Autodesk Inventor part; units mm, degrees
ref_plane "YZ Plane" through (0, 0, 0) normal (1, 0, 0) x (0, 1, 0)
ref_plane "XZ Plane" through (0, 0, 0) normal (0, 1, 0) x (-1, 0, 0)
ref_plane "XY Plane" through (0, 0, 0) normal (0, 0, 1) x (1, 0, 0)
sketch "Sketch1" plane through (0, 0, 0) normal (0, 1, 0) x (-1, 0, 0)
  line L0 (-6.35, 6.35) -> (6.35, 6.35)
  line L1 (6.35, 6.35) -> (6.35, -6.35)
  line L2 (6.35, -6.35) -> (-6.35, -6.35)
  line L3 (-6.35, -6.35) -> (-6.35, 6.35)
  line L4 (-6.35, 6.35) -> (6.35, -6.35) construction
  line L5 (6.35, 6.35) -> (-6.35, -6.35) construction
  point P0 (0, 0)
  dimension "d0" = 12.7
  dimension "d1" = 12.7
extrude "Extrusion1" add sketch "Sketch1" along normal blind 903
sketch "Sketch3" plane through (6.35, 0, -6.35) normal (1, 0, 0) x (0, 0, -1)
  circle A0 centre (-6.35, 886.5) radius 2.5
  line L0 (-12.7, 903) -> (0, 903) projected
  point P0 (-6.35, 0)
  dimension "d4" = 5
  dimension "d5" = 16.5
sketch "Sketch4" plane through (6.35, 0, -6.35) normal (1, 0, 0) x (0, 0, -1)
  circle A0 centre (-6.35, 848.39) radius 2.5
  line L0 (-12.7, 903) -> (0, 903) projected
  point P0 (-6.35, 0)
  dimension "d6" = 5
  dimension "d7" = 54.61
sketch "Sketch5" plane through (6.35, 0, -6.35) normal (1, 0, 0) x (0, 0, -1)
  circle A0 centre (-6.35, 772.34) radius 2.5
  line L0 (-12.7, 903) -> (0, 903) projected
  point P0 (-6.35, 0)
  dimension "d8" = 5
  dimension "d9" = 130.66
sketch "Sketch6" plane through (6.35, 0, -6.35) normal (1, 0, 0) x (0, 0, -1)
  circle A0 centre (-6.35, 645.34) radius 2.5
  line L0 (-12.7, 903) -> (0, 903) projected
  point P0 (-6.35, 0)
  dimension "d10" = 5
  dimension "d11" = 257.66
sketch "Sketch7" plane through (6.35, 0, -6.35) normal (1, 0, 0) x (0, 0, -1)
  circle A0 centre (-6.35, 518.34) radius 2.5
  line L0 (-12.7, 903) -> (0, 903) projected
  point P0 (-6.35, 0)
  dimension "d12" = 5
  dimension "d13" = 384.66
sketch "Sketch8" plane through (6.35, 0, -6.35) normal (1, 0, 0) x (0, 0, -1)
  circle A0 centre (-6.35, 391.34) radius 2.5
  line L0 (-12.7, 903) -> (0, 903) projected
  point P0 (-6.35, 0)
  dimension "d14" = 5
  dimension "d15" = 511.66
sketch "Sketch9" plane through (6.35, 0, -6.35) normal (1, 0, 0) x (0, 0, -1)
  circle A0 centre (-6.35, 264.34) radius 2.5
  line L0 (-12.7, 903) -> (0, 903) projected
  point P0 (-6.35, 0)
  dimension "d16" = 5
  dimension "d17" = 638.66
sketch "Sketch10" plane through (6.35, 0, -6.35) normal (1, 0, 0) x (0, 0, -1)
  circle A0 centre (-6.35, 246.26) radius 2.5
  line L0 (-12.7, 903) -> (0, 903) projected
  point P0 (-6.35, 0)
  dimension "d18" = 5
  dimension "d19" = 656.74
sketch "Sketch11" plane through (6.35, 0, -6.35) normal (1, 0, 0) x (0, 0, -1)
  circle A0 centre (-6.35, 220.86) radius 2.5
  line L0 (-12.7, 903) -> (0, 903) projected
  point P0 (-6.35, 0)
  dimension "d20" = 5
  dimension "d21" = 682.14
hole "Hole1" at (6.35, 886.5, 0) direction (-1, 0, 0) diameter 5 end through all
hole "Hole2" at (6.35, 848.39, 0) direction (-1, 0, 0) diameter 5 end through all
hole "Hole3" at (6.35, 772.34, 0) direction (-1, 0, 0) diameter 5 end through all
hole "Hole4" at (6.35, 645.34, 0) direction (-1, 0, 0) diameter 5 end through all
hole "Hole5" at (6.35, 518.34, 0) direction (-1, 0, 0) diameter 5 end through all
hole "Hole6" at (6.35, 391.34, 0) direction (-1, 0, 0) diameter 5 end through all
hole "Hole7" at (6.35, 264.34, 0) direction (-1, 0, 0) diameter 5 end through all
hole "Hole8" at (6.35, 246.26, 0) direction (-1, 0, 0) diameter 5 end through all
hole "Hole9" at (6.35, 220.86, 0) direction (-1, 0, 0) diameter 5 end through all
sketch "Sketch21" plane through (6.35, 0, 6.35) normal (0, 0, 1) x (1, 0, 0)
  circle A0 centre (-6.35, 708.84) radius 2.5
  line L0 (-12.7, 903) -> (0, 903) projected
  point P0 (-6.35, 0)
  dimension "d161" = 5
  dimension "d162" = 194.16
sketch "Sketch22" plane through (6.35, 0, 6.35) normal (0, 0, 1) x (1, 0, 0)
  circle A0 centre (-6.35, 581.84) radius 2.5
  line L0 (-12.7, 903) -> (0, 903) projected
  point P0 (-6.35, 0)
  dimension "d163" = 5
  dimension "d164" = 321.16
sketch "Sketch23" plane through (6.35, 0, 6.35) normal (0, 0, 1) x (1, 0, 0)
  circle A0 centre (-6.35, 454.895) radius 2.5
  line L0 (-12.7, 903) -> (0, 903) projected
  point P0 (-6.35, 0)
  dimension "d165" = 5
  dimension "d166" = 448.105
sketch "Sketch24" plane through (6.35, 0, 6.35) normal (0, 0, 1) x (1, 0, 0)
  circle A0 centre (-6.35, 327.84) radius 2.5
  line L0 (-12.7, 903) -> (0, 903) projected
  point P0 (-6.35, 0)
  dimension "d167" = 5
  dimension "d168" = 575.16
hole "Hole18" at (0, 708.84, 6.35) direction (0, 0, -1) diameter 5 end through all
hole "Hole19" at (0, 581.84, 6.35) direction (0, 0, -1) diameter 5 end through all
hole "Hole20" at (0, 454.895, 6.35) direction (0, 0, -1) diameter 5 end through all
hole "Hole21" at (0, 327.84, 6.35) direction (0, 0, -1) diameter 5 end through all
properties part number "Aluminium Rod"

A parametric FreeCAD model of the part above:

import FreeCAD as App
import Part
import Sketcher

doc = App.newDocument("Part")
body = doc.addObject("PartDesign::Body", "Body")

# Sketch on XZ plane
sketch1 = body.newObject("Sketcher::SketchObject", "Sketch")
sketch1.AttachmentSupport = (doc.getObject("XZ_Plane"), [""])
sketch1.MapMode = "FlatFace"
sketch1.addGeometry(Part.LineSegment(App.Vector(-6, 6, 0), App.Vector(6, 6, 0)), False)
sketch1.addGeometry(Part.LineSegment(App.Vector(6, 6, 0), App.Vector(6, -6, 0)), False)
sketch1.addGeometry(Part.LineSegment(App.Vector(6, -6, 0), App.Vector(-6, -6, 0)), False)
sketch1.addGeometry(Part.LineSegment(App.Vector(-6, -6, 0), App.Vector(-6, 6, 0)), False)
sketch1.addConstraint(Sketcher.Constraint("Coincident", 0, 2, 1, 1))
sketch1.addConstraint(Sketcher.Constraint("Coincident", 1, 2, 2, 1))
sketch1.addConstraint(Sketcher.Constraint("Coincident", 2, 2, 3, 1))
sketch1.addConstraint(Sketcher.Constraint("Coincident", 3, 2, 0, 1))
sketch1.addConstraint(Sketcher.Constraint("Horizontal", 0))
sketch1.addConstraint(Sketcher.Constraint("Vertical", 1))
sketch1.addConstraint(Sketcher.Constraint("Horizontal", 2))
sketch1.addConstraint(Sketcher.Constraint("Vertical", 3))
sketch1.addConstraint(Sketcher.Constraint("Symmetric", 0, 2, 2, 2, -1, 1))
sketch1.addConstraint(Sketcher.Constraint("Equal", 2, 1))
sketch1.addConstraint(Sketcher.Constraint("DistanceX", 0, 1, 0, 2, 12.7))
pad1 = body.newObject("PartDesign::Pad", "Pad")
pad1.Profile = sketch1
pad1.Length = 903
pad1.Reversed = True

# Sketch on YZ plane
sketch2 = body.newObject("Sketcher::SketchObject", "Sketch001")
sketch2.AttachmentSupport = (doc.getObject("YZ_Plane"), [""])
sketch2.MapMode = "FlatFace"
sketch2.AttachmentOffset = App.Placement(App.Vector(0, 0, 6.35), App.Rotation())
sketch2.addGeometry(Part.Circle(App.Vector(886.5, 0, 0), App.Vector(0, 0, 1), 2.5), False)
sketch2.addConstraint(Sketcher.Constraint("PointOnObject", 0, 3, -1))
sketch2.addConstraint(Sketcher.Constraint("Diameter", 0, 5.0))
sketch2.addConstraint(Sketcher.Constraint("DistanceX", -1, 1, 0, 3, 886.5))
doc.recompute()
hole = body.newObject("PartDesign::Hole", "Hole")
hole.Profile = sketch2
hole.ThreadType = "None"
hole.Diameter = 5
hole.DepthType = "ThroughAll"

# Sketch on YZ plane
sketch3 = body.newObject("Sketcher::SketchObject", "Sketch002")
sketch3.AttachmentSupport = (doc.getObject("YZ_Plane"), [""])
sketch3.MapMode = "FlatFace"
sketch3.AttachmentOffset = App.Placement(App.Vector(0, 0, 6.35), App.Rotation())
sketch3.addGeometry(Part.Circle(App.Vector(848.4, 0, 0), App.Vector(0, 0, 1), 2.5), False)
sketch3.addConstraint(Sketcher.Constraint("PointOnObject", 0, 3, -1))
sketch3.addConstraint(Sketcher.Constraint("Diameter", 0, 5.0))
sketch3.addConstraint(Sketcher.Constraint("DistanceX", -1, 1, 0, 3, 848.39))
doc.recompute()
hole2 = body.newObject("PartDesign::Hole", "Hole001")
hole2.Profile = sketch3
hole2.ThreadType = "None"
hole2.Diameter = 5
hole2.DepthType = "ThroughAll"

# Sketch on YZ plane
sketch4 = body.newObject("Sketcher::SketchObject", "Sketch003")
sketch4.AttachmentSupport = (doc.getObject("YZ_Plane"), [""])
sketch4.MapMode = "FlatFace"
sketch4.AttachmentOffset = App.Placement(App.Vector(0, 0, 6.35), App.Rotation())
sketch4.addGeometry(Part.Circle(App.Vector(772.3, 0, 0), App.Vector(0, 0, 1), 2.5), False)
sketch4.addConstraint(Sketcher.Constraint("PointOnObject", 0, 3, -1))
sketch4.addConstraint(Sketcher.Constraint("Diameter", 0, 5.0))
sketch4.addConstraint(Sketcher.Constraint("DistanceX", -1, 1, 0, 3, 772.34))
doc.recompute()
hole3 = body.newObject("PartDesign::Hole", "Hole002")
hole3.Profile = sketch4
hole3.ThreadType = "None"
hole3.Diameter = 5
hole3.DepthType = "ThroughAll"

# Sketch on YZ plane
sketch5 = body.newObject("Sketcher::SketchObject", "Sketch004")
sketch5.AttachmentSupport = (doc.getObject("YZ_Plane"), [""])
sketch5.MapMode = "FlatFace"
sketch5.AttachmentOffset = App.Placement(App.Vector(0, 0, 6.35), App.Rotation())
sketch5.addGeometry(Part.Circle(App.Vector(645.3, 0, 0), App.Vector(0, 0, 1), 2.5), False)
sketch5.addConstraint(Sketcher.Constraint("PointOnObject", 0, 3, -1))
sketch5.addConstraint(Sketcher.Constraint("Diameter", 0, 5.0))
sketch5.addConstraint(Sketcher.Constraint("DistanceX", -1, 1, 0, 3, 645.34))
doc.recompute()
hole4 = body.newObject("PartDesign::Hole", "Hole003")
hole4.Profile = sketch5
hole4.ThreadType = "None"
hole4.Diameter = 5
hole4.DepthType = "ThroughAll"

# Sketch on YZ plane
sketch6 = body.newObject("Sketcher::SketchObject", "Sketch005")
sketch6.AttachmentSupport = (doc.getObject("YZ_Plane"), [""])
sketch6.MapMode = "FlatFace"
sketch6.AttachmentOffset = App.Placement(App.Vector(0, 0, 6.35), App.Rotation())
sketch6.addGeometry(Part.Circle(App.Vector(518.3, 0, 0), App.Vector(0, 0, 1), 2.5), False)
sketch6.addConstraint(Sketcher.Constraint("PointOnObject", 0, 3, -1))
sketch6.addConstraint(Sketcher.Constraint("Diameter", 0, 5.0))
sketch6.addConstraint(Sketcher.Constraint("DistanceX", -1, 1, 0, 3, 518.34))
doc.recompute()
hole5 = body.newObject("PartDesign::Hole", "Hole004")
hole5.Profile = sketch6
hole5.ThreadType = "None"
hole5.Diameter = 5
hole5.DepthType = "ThroughAll"

# Sketch on YZ plane
sketch7 = body.newObject("Sketcher::SketchObject", "Sketch006")
sketch7.AttachmentSupport = (doc.getObject("YZ_Plane"), [""])
sketch7.MapMode = "FlatFace"
sketch7.AttachmentOffset = App.Placement(App.Vector(0, 0, 6.35), App.Rotation())
sketch7.addGeometry(Part.Circle(App.Vector(391.3, 0, 0), App.Vector(0, 0, 1), 2.5), False)
sketch7.addConstraint(Sketcher.Constraint("PointOnObject", 0, 3, -1))
sketch7.addConstraint(Sketcher.Constraint("Diameter", 0, 5.0))
sketch7.addConstraint(Sketcher.Constraint("DistanceX", -1, 1, 0, 3, 391.34))
doc.recompute()
hole6 = body.newObject("PartDesign::Hole", "Hole005")
hole6.Profile = sketch7
hole6.ThreadType = "None"
hole6.Diameter = 5
hole6.DepthType = "ThroughAll"

# Sketch on YZ plane
sketch8 = body.newObject("Sketcher::SketchObject", "Sketch007")
sketch8.AttachmentSupport = (doc.getObject("YZ_Plane"), [""])
sketch8.MapMode = "FlatFace"
sketch8.AttachmentOffset = App.Placement(App.Vector(0, 0, 6.35), App.Rotation())
sketch8.addGeometry(Part.Circle(App.Vector(264.3, 0, 0), App.Vector(0, 0, 1), 2.5), False)
sketch8.addConstraint(Sketcher.Constraint("PointOnObject", 0, 3, -1))
sketch8.addConstraint(Sketcher.Constraint("Diameter", 0, 5.0))
sketch8.addConstraint(Sketcher.Constraint("DistanceX", -1, 1, 0, 3, 264.34))
doc.recompute()
hole7 = body.newObject("PartDesign::Hole", "Hole006")
hole7.Profile = sketch8
hole7.ThreadType = "None"
hole7.Diameter = 5
hole7.DepthType = "ThroughAll"

# Sketch on YZ plane
sketch9 = body.newObject("Sketcher::SketchObject", "Sketch008")
sketch9.AttachmentSupport = (doc.getObject("YZ_Plane"), [""])
sketch9.MapMode = "FlatFace"
sketch9.AttachmentOffset = App.Placement(App.Vector(0, 0, 6.35), App.Rotation())
sketch9.addGeometry(Part.Circle(App.Vector(246.3, 0, 0), App.Vector(0, 0, 1), 2.5), False)
sketch9.addConstraint(Sketcher.Constraint("PointOnObject", 0, 3, -1))
sketch9.addConstraint(Sketcher.Constraint("Diameter", 0, 5.0))
sketch9.addConstraint(Sketcher.Constraint("DistanceX", -1, 1, 0, 3, 246.26))
doc.recompute()
hole8 = body.newObject("PartDesign::Hole", "Hole007")
hole8.Profile = sketch9
hole8.ThreadType = "None"
hole8.Diameter = 5
hole8.DepthType = "ThroughAll"

# Sketch on YZ plane
sketch10 = body.newObject("Sketcher::SketchObject", "Sketch009")
sketch10.AttachmentSupport = (doc.getObject("YZ_Plane"), [""])
sketch10.MapMode = "FlatFace"
sketch10.AttachmentOffset = App.Placement(App.Vector(0, 0, 6.35), App.Rotation())
sketch10.addGeometry(Part.Circle(App.Vector(220.9, 0, 0), App.Vector(0, 0, 1), 2.5), False)
sketch10.addConstraint(Sketcher.Constraint("PointOnObject", 0, 3, -1))
sketch10.addConstraint(Sketcher.Constraint("Diameter", 0, 5.0))
sketch10.addConstraint(Sketcher.Constraint("DistanceX", -1, 1, 0, 3, 220.86))
doc.recompute()
hole9 = body.newObject("PartDesign::Hole", "Hole008")
hole9.Profile = sketch10
hole9.ThreadType = "None"
hole9.Diameter = 5
hole9.DepthType = "ThroughAll"

# Sketch on XY plane
sketch11 = body.newObject("Sketcher::SketchObject", "Sketch010")
sketch11.AttachmentSupport = (doc.getObject("XY_Plane"), [""])
sketch11.MapMode = "FlatFace"
sketch11.AttachmentOffset = App.Placement(App.Vector(0, 0, 6.35), App.Rotation())
sketch11.addGeometry(Part.Circle(App.Vector(0, 708.8, 0), App.Vector(0, 0, 1), 2.5), False)
sketch11.addConstraint(Sketcher.Constraint("PointOnObject", 0, 3, -2))
sketch11.addConstraint(Sketcher.Constraint("Diameter", 0, 5.0))
sketch11.addConstraint(Sketcher.Constraint("DistanceY", -1, 1, 0, 3, 708.84))
doc.recompute()
hole10 = body.newObject("PartDesign::Hole", "Hole009")
hole10.Profile = sketch11
hole10.ThreadType = "None"
hole10.Diameter = 5
hole10.DepthType = "ThroughAll"

# Sketch on XY plane
sketch12 = body.newObject("Sketcher::SketchObject", "Sketch011")
sketch12.AttachmentSupport = (doc.getObject("XY_Plane"), [""])
sketch12.MapMode = "FlatFace"
sketch12.AttachmentOffset = App.Placement(App.Vector(0, 0, 6.35), App.Rotation())
sketch12.addGeometry(Part.Circle(App.Vector(0, 581.8, 0), App.Vector(0, 0, 1), 2.5), False)
sketch12.addConstraint(Sketcher.Constraint("PointOnObject", 0, 3, -2))
sketch12.addConstraint(Sketcher.Constraint("Diameter", 0, 5.0))
sketch12.addConstraint(Sketcher.Constraint("DistanceY", -1, 1, 0, 3, 581.84))
doc.recompute()
hole11 = body.newObject("PartDesign::Hole", "Hole010")
hole11.Profile = sketch12
hole11.ThreadType = "None"
hole11.Diameter = 5
hole11.DepthType = "ThroughAll"

# Sketch on XY plane
sketch13 = body.newObject("Sketcher::SketchObject", "Sketch012")
sketch13.AttachmentSupport = (doc.getObject("XY_Plane"), [""])
sketch13.MapMode = "FlatFace"
sketch13.AttachmentOffset = App.Placement(App.Vector(0, 0, 6.35), App.Rotation())
sketch13.addGeometry(Part.Circle(App.Vector(0, 454.9, 0), App.Vector(0, 0, 1), 2.5), False)
sketch13.addConstraint(Sketcher.Constraint("PointOnObject", 0, 3, -2))
sketch13.addConstraint(Sketcher.Constraint("Diameter", 0, 5.0))
sketch13.addConstraint(Sketcher.Constraint("DistanceY", -1, 1, 0, 3, 454.895))
doc.recompute()
hole12 = body.newObject("PartDesign::Hole", "Hole011")
hole12.Profile = sketch13
hole12.ThreadType = "None"
hole12.Diameter = 5
hole12.DepthType = "ThroughAll"

# Sketch on XY plane
sketch14 = body.newObject("Sketcher::SketchObject", "Sketch013")
sketch14.AttachmentSupport = (doc.getObject("XY_Plane"), [""])
sketch14.MapMode = "FlatFace"
sketch14.AttachmentOffset = App.Placement(App.Vector(0, 0, 6.35), App.Rotation())
sketch14.addGeometry(Part.Circle(App.Vector(0, 327.8, 0), App.Vector(0, 0, 1), 2.5), False)
sketch14.addConstraint(Sketcher.Constraint("PointOnObject", 0, 3, -2))
sketch14.addConstraint(Sketcher.Constraint("Diameter", 0, 5.0))
sketch14.addConstraint(Sketcher.Constraint("DistanceY", -1, 1, 0, 3, 327.84))
doc.recompute()
hole13 = body.newObject("PartDesign::Hole", "Hole012")
hole13.Profile = sketch14
hole13.ThreadType = "None"
hole13.Diameter = 5
hole13.DepthType = "ThroughAll"

doc.recompute()
